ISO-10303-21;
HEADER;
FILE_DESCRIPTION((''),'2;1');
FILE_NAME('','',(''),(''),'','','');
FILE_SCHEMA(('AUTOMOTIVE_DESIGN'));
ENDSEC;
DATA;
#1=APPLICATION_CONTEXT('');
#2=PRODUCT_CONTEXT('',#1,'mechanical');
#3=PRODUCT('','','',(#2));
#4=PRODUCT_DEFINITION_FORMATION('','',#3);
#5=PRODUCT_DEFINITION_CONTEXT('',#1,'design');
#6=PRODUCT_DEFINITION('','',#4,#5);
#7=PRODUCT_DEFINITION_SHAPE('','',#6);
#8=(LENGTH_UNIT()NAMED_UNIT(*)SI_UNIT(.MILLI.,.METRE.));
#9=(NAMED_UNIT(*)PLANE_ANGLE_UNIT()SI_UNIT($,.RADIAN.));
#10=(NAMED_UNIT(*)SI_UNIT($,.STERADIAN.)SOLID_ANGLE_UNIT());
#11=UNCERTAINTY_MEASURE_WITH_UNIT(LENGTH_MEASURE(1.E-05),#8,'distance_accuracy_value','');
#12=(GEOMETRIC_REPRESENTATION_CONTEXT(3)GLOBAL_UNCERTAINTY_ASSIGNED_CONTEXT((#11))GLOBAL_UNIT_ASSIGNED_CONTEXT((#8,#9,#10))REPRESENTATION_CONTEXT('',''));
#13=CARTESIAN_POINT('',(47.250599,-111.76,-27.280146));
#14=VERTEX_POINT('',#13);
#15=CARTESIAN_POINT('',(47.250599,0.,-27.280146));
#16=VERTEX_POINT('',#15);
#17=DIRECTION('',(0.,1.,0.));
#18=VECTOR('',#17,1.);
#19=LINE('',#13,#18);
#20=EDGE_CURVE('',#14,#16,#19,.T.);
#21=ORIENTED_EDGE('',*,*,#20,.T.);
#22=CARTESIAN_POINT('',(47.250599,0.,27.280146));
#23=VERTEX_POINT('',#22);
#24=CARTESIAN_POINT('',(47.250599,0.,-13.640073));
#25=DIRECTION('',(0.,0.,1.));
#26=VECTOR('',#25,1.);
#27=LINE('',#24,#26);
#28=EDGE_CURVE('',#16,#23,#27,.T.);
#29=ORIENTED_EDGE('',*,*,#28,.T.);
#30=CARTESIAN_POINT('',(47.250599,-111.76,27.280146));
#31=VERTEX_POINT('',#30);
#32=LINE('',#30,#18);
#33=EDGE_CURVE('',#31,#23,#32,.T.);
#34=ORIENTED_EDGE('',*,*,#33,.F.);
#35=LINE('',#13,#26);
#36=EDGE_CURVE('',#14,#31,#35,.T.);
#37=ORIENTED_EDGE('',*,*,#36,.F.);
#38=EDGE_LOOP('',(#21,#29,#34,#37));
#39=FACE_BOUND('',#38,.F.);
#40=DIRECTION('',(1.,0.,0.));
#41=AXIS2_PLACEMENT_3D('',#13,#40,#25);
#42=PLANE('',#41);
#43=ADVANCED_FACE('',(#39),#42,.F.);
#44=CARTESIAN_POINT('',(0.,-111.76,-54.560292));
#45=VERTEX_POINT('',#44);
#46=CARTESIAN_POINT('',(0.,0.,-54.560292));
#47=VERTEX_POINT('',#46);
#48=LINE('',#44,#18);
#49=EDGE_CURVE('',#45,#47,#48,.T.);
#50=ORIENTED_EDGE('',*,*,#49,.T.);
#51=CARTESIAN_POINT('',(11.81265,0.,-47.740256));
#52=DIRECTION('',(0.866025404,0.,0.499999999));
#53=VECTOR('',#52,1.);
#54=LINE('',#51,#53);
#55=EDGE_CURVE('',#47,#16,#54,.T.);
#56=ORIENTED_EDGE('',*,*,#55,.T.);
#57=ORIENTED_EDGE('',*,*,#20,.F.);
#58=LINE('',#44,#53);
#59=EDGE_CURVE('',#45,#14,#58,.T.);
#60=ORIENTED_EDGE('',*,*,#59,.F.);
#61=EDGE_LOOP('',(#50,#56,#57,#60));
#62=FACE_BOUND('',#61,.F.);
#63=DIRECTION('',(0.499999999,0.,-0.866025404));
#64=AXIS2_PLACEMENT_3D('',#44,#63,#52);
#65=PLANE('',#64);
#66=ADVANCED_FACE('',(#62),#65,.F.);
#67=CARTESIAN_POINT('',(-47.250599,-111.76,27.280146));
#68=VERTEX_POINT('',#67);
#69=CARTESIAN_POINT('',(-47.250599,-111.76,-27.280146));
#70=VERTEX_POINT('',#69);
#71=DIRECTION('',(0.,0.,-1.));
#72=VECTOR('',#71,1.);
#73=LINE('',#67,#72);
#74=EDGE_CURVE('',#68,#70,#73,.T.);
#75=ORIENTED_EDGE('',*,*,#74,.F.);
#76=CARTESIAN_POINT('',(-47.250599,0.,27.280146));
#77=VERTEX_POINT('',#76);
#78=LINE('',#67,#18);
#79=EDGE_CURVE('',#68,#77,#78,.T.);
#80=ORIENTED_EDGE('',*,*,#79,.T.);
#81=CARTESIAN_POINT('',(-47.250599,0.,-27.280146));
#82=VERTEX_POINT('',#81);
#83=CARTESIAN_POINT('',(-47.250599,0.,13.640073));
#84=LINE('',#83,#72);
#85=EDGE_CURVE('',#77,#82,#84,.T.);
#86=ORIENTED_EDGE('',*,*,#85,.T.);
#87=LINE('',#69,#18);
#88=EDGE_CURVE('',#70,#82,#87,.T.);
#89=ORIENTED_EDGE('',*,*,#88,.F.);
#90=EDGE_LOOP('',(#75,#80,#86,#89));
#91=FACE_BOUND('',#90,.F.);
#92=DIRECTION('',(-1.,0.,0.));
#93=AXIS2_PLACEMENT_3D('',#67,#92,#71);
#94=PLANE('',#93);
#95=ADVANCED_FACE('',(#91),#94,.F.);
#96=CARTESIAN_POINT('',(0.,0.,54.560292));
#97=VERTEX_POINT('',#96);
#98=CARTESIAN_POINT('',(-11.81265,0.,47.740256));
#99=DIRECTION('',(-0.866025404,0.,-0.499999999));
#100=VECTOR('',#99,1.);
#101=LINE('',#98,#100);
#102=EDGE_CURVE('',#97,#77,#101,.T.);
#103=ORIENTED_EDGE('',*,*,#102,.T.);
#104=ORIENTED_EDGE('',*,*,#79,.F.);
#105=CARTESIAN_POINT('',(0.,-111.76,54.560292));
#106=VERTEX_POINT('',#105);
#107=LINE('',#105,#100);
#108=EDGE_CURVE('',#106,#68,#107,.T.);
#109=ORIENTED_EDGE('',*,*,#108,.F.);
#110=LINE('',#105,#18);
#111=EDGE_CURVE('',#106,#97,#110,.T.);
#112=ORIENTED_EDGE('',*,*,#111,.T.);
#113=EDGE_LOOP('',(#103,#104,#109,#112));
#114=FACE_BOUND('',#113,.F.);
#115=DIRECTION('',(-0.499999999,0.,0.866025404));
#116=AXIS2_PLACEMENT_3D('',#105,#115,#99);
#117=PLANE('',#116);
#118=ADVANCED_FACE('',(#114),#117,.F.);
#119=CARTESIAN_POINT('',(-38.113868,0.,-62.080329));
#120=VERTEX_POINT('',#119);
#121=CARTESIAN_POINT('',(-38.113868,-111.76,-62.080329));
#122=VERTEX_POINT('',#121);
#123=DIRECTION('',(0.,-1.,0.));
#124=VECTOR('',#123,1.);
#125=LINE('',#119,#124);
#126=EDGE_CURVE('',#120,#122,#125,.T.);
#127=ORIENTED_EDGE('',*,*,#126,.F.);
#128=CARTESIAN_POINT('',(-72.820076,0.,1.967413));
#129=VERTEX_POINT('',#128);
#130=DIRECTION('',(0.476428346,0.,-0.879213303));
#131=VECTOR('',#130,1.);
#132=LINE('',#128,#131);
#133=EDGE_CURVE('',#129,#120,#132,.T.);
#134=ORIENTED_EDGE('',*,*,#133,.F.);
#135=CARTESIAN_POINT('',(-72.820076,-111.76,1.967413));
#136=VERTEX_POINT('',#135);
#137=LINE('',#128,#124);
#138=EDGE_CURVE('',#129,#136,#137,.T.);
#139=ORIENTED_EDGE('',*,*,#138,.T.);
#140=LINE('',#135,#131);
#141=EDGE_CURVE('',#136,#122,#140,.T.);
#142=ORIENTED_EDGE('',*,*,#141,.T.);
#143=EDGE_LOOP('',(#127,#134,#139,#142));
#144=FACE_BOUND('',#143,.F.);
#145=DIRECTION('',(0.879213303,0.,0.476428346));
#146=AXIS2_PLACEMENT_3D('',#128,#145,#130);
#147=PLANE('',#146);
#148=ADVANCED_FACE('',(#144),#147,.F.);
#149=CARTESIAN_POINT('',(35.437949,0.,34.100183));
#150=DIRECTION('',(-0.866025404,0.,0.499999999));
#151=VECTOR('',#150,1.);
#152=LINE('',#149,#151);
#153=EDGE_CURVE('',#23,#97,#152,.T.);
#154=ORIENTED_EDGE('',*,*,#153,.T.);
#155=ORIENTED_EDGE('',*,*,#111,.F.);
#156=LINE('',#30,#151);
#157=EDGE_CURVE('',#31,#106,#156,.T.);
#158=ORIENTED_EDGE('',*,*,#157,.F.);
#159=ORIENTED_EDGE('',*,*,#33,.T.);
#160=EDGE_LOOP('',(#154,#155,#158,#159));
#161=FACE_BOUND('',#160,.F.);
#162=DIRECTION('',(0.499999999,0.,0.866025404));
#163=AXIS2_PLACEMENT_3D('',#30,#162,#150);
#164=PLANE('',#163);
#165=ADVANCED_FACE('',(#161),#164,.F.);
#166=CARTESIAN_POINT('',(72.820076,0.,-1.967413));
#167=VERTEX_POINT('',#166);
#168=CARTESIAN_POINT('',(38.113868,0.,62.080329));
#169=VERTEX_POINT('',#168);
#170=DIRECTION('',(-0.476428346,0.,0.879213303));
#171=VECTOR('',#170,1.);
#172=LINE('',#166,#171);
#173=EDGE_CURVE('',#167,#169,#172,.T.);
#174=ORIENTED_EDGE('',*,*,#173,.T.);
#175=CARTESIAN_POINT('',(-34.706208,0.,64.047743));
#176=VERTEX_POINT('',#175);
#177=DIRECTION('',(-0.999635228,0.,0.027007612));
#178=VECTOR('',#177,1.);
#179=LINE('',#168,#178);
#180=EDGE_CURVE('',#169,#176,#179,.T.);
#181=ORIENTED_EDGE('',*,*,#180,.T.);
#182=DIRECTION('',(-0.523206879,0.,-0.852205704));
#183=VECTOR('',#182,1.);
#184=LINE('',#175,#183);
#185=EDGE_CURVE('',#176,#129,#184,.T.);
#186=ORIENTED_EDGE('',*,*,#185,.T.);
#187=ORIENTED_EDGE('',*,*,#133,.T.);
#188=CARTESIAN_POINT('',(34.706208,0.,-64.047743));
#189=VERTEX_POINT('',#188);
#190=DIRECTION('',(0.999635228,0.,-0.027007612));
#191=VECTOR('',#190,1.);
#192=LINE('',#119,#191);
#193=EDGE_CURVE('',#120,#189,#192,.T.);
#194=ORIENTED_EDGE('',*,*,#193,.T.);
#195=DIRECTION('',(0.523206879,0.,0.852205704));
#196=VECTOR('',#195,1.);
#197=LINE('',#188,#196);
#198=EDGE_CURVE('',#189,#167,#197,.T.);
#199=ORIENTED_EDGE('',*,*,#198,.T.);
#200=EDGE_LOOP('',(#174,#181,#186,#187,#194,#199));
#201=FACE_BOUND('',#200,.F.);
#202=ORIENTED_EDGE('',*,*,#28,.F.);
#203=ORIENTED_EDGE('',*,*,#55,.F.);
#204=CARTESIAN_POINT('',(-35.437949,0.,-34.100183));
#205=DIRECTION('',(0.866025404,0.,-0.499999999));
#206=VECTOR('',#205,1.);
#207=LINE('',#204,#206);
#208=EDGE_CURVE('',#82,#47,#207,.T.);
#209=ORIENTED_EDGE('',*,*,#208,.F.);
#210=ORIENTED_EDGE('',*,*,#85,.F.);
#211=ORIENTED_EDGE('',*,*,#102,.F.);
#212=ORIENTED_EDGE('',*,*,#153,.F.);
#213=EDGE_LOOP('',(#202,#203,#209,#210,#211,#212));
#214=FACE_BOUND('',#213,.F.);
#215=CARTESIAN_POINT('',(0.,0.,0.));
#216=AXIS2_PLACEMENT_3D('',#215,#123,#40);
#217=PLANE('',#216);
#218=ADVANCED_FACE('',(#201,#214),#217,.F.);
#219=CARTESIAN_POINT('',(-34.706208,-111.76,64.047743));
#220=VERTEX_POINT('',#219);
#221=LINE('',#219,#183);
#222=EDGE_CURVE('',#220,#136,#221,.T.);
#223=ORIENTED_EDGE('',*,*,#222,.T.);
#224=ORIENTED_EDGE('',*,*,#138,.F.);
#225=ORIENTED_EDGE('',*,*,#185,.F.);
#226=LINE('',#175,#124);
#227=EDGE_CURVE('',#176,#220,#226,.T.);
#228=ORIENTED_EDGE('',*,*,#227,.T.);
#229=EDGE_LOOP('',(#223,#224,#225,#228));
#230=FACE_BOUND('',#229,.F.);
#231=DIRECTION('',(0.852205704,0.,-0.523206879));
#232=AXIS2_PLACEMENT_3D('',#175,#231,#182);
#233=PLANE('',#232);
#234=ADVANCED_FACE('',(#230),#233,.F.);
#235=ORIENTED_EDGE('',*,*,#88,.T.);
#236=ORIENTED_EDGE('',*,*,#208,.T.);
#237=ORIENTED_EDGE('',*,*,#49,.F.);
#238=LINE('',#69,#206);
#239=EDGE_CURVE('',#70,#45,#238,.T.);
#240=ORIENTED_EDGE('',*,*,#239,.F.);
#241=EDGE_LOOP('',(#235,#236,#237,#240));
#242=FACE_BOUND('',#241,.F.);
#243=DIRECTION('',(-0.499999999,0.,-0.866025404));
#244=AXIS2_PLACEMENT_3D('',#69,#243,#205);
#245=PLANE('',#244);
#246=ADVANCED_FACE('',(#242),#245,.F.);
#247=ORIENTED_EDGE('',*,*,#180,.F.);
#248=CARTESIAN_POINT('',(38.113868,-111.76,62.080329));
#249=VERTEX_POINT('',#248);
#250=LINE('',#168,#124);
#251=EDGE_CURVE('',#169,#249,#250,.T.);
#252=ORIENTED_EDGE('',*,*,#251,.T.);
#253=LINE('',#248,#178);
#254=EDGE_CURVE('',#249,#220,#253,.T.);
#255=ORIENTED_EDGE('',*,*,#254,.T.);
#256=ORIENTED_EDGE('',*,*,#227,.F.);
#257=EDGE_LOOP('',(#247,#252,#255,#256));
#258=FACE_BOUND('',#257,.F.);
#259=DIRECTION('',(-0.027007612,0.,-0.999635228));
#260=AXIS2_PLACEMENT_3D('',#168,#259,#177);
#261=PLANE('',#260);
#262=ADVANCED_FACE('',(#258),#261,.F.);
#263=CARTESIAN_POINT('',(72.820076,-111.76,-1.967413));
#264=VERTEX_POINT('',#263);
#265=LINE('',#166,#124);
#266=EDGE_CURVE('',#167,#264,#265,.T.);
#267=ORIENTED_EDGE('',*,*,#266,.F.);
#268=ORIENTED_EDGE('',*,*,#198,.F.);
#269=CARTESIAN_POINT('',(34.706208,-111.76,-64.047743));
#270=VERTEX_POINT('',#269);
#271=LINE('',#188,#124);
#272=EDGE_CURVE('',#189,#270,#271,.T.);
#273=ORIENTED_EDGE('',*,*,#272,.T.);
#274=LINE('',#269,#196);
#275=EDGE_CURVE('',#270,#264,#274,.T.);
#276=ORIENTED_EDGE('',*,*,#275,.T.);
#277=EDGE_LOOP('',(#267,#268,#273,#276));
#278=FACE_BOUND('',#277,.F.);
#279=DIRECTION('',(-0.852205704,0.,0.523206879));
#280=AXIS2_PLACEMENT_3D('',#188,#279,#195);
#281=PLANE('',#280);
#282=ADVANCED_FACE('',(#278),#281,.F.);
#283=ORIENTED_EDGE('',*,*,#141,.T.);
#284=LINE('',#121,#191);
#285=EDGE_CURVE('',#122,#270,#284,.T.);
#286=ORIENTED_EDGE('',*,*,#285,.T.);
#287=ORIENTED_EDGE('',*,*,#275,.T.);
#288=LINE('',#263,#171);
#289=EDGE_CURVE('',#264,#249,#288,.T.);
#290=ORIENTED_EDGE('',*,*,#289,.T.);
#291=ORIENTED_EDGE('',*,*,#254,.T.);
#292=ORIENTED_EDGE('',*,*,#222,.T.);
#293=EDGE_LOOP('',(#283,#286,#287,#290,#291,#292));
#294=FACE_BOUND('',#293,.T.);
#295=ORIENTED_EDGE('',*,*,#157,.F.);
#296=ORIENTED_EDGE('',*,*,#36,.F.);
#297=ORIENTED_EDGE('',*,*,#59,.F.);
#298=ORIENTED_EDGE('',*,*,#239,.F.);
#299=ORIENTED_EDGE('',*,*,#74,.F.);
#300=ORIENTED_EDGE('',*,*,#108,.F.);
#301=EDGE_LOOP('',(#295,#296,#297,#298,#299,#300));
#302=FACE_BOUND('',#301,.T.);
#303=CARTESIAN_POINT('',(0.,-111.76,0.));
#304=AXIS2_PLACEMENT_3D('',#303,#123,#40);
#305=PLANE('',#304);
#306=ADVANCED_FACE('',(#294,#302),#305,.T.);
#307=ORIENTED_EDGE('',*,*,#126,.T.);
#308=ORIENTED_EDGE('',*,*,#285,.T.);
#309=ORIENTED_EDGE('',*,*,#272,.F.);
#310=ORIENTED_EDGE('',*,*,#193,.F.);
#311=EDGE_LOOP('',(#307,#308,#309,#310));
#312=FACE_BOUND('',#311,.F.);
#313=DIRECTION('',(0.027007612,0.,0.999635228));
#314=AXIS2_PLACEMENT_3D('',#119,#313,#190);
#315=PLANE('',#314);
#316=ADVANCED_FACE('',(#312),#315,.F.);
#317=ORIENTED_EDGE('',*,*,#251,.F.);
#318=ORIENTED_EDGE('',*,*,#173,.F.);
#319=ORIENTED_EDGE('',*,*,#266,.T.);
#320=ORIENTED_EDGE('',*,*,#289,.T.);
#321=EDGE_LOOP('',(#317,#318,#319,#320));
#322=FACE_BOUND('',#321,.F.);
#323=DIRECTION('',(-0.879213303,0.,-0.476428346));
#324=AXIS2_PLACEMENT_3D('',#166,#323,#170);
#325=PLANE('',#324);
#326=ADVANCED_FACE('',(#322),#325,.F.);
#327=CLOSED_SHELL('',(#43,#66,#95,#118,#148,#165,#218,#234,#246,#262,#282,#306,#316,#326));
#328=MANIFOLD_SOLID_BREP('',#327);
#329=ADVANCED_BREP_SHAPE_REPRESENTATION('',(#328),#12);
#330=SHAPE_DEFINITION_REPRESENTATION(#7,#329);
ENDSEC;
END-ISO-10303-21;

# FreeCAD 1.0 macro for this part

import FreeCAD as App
import Part
import Sketcher
from FreeCAD import Vector
Q = App.Units.Quantity

doc = App.newDocument("Part")
body = doc.addObject("PartDesign::Body", "Body")

sketch1 = body.newObject("Sketcher::SketchObject", "Sketch")
sketch1.AttachmentSupport = (doc.getObject("XZ_Plane"), [""])
sketch1.MapMode = "FlatFace"
sketch1.addGeometry(Part.LineSegment(Vector(72.820076, -1.967413, 0), Vector(38.113868, 62.080329, 0)), False)
sketch1.addGeometry(Part.LineSegment(Vector(38.113868, 62.080329, 0), Vector(-34.706208, 64.047743, 0)), False)
sketch1.addGeometry(Part.LineSegment(Vector(-34.706208, 64.047743, 0), Vector(-72.820076, 1.967413, 0)), False)
sketch1.addGeometry(Part.LineSegment(Vector(-72.820076, 1.967413, 0), Vector(-38.113868, -62.080329, 0)), False)
sketch1.addGeometry(Part.LineSegment(Vector(-38.113868, -62.080329, 0), Vector(34.706208, -64.047743, 0)), False)
sketch1.addGeometry(Part.LineSegment(Vector(34.706208, -64.047743, 0), Vector(72.820076, -1.967413, 0)), False)
sketch1.addConstraint(Sketcher.Constraint("Coincident", 0, 2, 1, 1))
sketch1.addConstraint(Sketcher.Constraint("Coincident", 1, 2, 2, 1))
sketch1.addConstraint(Sketcher.Constraint("Coincident", 2, 2, 3, 1))
sketch1.addConstraint(Sketcher.Constraint("Coincident", 3, 2, 4, 1))
sketch1.addConstraint(Sketcher.Constraint("Coincident", 4, 2, 5, 1))
sketch1.addConstraint(Sketcher.Constraint("Coincident", 5, 2, 0, 1))
sketch1.addConstraint(Sketcher.Constraint("Symmetric", 0, 2, 3, 2, -1, 1))
sketch1.addConstraint(Sketcher.Constraint("Symmetric", 1, 2, 4, 2, -1, 1))
sketch1.addConstraint(Sketcher.Constraint("Symmetric", 2, 2, 5, 2, -1, 1))
sketch1.addConstraint(Sketcher.Constraint("Equal", 0, 1))
sketch1.addConstraint(Sketcher.Constraint("Equal", 1, 2))
sketch1.addConstraint(Sketcher.Constraint("Distance", 0, Q("72.846648 mm")))
sketch1.addConstraint(Sketcher.Constraint("DistanceY", -1, 1, 0, 2, Q("62.080329 mm")))
sketch1.addConstraint(Sketcher.Constraint("DistanceX", 2, 2, 1, 2, Q("38.113868 mm")))
sketch1.addConstraint(Sketcher.Constraint("DistanceX", 2, 2, 3, 2, Q("34.706208 mm")))
pad1 = body.newObject("PartDesign::Pad", "Pad")
pad1.Profile = sketch1
pad1.Length = Q("4.4 in")

sketch2 = body.newObject("Sketcher::SketchObject", "Sketch001")
sketch2.AttachmentSupport = (doc.getObject("XZ_Plane"), [""])
sketch2.MapMode = "FlatFace"
sketch2.AttachmentOffset = App.Placement(Vector(0, 0, 4.4 * 25.4), App.Rotation())
sketch2.addGeometry(Part.LineSegment(Vector(47.250599, -27.280146, 0), Vector(47.250599, 27.280146, 0)), False)
sketch2.addGeometry(Part.LineSegment(Vector(47.250599, 27.280146, 0), Vector(0, 54.560292, 0)), False)
sketch2.addGeometry(Part.LineSegment(Vector(0, 54.560292, 0), Vector(-47.250599, 27.280146, 0)), False)
sketch2.addGeometry(Part.LineSegment(Vector(-47.250599, 27.280146, 0), Vector(-47.250599, -27.280146, 0)), False)
sketch2.addGeometry(Part.LineSegment(Vector(-47.250599, -27.280146, 0), Vector(0, -54.560292, 0)), False)
sketch2.addGeometry(Part.LineSegment(Vector(0, -54.560292, 0), Vector(47.250599, -27.280146, 0)), False)
sketch2.addConstraint(Sketcher.Constraint("Coincident", 0, 2, 1, 1))
sketch2.addConstraint(Sketcher.Constraint("Coincident", 1, 2, 2, 1))
sketch2.addConstraint(Sketcher.Constraint("Coincident", 2, 2, 3, 1))
sketch2.addConstraint(Sketcher.Constraint("Coincident", 3, 2, 4, 1))
sketch2.addConstraint(Sketcher.Constraint("Coincident", 4, 2, 5, 1))
sketch2.addConstraint(Sketcher.Constraint("Coincident", 5, 2, 0, 1))
sketch2.addConstraint(Sketcher.Constraint("Vertical", 0))
sketch2.addConstraint(Sketcher.Constraint("Vertical", 3))
sketch2.addConstraint(Sketcher.Constraint("Symmetric", 0, 2, 3, 2, -1, 1))
sketch2.addConstraint(Sketcher.Constraint("Symmetric", 1, 2, 4, 2, -1, 1))
sketch2.addConstraint(Sketcher.Constraint("PointOnObject", 1, 2, -2))
sketch2.addConstraint(Sketcher.Constraint("Parallel", 2, 5))
sketch2.addConstraint(Sketcher.Constraint("Horizontal", 0, 2, 2, 2))
sketch2.addConstraint(Sketcher.Constraint("Angle", 1, Q("150 deg")))
sketch2.addConstraint(Sketcher.Constraint("DistanceY", 0, 1, 0, 2, Q("54.560292 mm")))
sketch2.addConstraint(Sketcher.Constraint("DistanceX", -1, 1, 0, 2, Q("47.250599 mm")))
pocket1 = body.newObject("PartDesign::Pocket", "Pocket")
pocket1.Profile = sketch2
pocket1.Length = Q("7.81 in")

doc.recompute()
